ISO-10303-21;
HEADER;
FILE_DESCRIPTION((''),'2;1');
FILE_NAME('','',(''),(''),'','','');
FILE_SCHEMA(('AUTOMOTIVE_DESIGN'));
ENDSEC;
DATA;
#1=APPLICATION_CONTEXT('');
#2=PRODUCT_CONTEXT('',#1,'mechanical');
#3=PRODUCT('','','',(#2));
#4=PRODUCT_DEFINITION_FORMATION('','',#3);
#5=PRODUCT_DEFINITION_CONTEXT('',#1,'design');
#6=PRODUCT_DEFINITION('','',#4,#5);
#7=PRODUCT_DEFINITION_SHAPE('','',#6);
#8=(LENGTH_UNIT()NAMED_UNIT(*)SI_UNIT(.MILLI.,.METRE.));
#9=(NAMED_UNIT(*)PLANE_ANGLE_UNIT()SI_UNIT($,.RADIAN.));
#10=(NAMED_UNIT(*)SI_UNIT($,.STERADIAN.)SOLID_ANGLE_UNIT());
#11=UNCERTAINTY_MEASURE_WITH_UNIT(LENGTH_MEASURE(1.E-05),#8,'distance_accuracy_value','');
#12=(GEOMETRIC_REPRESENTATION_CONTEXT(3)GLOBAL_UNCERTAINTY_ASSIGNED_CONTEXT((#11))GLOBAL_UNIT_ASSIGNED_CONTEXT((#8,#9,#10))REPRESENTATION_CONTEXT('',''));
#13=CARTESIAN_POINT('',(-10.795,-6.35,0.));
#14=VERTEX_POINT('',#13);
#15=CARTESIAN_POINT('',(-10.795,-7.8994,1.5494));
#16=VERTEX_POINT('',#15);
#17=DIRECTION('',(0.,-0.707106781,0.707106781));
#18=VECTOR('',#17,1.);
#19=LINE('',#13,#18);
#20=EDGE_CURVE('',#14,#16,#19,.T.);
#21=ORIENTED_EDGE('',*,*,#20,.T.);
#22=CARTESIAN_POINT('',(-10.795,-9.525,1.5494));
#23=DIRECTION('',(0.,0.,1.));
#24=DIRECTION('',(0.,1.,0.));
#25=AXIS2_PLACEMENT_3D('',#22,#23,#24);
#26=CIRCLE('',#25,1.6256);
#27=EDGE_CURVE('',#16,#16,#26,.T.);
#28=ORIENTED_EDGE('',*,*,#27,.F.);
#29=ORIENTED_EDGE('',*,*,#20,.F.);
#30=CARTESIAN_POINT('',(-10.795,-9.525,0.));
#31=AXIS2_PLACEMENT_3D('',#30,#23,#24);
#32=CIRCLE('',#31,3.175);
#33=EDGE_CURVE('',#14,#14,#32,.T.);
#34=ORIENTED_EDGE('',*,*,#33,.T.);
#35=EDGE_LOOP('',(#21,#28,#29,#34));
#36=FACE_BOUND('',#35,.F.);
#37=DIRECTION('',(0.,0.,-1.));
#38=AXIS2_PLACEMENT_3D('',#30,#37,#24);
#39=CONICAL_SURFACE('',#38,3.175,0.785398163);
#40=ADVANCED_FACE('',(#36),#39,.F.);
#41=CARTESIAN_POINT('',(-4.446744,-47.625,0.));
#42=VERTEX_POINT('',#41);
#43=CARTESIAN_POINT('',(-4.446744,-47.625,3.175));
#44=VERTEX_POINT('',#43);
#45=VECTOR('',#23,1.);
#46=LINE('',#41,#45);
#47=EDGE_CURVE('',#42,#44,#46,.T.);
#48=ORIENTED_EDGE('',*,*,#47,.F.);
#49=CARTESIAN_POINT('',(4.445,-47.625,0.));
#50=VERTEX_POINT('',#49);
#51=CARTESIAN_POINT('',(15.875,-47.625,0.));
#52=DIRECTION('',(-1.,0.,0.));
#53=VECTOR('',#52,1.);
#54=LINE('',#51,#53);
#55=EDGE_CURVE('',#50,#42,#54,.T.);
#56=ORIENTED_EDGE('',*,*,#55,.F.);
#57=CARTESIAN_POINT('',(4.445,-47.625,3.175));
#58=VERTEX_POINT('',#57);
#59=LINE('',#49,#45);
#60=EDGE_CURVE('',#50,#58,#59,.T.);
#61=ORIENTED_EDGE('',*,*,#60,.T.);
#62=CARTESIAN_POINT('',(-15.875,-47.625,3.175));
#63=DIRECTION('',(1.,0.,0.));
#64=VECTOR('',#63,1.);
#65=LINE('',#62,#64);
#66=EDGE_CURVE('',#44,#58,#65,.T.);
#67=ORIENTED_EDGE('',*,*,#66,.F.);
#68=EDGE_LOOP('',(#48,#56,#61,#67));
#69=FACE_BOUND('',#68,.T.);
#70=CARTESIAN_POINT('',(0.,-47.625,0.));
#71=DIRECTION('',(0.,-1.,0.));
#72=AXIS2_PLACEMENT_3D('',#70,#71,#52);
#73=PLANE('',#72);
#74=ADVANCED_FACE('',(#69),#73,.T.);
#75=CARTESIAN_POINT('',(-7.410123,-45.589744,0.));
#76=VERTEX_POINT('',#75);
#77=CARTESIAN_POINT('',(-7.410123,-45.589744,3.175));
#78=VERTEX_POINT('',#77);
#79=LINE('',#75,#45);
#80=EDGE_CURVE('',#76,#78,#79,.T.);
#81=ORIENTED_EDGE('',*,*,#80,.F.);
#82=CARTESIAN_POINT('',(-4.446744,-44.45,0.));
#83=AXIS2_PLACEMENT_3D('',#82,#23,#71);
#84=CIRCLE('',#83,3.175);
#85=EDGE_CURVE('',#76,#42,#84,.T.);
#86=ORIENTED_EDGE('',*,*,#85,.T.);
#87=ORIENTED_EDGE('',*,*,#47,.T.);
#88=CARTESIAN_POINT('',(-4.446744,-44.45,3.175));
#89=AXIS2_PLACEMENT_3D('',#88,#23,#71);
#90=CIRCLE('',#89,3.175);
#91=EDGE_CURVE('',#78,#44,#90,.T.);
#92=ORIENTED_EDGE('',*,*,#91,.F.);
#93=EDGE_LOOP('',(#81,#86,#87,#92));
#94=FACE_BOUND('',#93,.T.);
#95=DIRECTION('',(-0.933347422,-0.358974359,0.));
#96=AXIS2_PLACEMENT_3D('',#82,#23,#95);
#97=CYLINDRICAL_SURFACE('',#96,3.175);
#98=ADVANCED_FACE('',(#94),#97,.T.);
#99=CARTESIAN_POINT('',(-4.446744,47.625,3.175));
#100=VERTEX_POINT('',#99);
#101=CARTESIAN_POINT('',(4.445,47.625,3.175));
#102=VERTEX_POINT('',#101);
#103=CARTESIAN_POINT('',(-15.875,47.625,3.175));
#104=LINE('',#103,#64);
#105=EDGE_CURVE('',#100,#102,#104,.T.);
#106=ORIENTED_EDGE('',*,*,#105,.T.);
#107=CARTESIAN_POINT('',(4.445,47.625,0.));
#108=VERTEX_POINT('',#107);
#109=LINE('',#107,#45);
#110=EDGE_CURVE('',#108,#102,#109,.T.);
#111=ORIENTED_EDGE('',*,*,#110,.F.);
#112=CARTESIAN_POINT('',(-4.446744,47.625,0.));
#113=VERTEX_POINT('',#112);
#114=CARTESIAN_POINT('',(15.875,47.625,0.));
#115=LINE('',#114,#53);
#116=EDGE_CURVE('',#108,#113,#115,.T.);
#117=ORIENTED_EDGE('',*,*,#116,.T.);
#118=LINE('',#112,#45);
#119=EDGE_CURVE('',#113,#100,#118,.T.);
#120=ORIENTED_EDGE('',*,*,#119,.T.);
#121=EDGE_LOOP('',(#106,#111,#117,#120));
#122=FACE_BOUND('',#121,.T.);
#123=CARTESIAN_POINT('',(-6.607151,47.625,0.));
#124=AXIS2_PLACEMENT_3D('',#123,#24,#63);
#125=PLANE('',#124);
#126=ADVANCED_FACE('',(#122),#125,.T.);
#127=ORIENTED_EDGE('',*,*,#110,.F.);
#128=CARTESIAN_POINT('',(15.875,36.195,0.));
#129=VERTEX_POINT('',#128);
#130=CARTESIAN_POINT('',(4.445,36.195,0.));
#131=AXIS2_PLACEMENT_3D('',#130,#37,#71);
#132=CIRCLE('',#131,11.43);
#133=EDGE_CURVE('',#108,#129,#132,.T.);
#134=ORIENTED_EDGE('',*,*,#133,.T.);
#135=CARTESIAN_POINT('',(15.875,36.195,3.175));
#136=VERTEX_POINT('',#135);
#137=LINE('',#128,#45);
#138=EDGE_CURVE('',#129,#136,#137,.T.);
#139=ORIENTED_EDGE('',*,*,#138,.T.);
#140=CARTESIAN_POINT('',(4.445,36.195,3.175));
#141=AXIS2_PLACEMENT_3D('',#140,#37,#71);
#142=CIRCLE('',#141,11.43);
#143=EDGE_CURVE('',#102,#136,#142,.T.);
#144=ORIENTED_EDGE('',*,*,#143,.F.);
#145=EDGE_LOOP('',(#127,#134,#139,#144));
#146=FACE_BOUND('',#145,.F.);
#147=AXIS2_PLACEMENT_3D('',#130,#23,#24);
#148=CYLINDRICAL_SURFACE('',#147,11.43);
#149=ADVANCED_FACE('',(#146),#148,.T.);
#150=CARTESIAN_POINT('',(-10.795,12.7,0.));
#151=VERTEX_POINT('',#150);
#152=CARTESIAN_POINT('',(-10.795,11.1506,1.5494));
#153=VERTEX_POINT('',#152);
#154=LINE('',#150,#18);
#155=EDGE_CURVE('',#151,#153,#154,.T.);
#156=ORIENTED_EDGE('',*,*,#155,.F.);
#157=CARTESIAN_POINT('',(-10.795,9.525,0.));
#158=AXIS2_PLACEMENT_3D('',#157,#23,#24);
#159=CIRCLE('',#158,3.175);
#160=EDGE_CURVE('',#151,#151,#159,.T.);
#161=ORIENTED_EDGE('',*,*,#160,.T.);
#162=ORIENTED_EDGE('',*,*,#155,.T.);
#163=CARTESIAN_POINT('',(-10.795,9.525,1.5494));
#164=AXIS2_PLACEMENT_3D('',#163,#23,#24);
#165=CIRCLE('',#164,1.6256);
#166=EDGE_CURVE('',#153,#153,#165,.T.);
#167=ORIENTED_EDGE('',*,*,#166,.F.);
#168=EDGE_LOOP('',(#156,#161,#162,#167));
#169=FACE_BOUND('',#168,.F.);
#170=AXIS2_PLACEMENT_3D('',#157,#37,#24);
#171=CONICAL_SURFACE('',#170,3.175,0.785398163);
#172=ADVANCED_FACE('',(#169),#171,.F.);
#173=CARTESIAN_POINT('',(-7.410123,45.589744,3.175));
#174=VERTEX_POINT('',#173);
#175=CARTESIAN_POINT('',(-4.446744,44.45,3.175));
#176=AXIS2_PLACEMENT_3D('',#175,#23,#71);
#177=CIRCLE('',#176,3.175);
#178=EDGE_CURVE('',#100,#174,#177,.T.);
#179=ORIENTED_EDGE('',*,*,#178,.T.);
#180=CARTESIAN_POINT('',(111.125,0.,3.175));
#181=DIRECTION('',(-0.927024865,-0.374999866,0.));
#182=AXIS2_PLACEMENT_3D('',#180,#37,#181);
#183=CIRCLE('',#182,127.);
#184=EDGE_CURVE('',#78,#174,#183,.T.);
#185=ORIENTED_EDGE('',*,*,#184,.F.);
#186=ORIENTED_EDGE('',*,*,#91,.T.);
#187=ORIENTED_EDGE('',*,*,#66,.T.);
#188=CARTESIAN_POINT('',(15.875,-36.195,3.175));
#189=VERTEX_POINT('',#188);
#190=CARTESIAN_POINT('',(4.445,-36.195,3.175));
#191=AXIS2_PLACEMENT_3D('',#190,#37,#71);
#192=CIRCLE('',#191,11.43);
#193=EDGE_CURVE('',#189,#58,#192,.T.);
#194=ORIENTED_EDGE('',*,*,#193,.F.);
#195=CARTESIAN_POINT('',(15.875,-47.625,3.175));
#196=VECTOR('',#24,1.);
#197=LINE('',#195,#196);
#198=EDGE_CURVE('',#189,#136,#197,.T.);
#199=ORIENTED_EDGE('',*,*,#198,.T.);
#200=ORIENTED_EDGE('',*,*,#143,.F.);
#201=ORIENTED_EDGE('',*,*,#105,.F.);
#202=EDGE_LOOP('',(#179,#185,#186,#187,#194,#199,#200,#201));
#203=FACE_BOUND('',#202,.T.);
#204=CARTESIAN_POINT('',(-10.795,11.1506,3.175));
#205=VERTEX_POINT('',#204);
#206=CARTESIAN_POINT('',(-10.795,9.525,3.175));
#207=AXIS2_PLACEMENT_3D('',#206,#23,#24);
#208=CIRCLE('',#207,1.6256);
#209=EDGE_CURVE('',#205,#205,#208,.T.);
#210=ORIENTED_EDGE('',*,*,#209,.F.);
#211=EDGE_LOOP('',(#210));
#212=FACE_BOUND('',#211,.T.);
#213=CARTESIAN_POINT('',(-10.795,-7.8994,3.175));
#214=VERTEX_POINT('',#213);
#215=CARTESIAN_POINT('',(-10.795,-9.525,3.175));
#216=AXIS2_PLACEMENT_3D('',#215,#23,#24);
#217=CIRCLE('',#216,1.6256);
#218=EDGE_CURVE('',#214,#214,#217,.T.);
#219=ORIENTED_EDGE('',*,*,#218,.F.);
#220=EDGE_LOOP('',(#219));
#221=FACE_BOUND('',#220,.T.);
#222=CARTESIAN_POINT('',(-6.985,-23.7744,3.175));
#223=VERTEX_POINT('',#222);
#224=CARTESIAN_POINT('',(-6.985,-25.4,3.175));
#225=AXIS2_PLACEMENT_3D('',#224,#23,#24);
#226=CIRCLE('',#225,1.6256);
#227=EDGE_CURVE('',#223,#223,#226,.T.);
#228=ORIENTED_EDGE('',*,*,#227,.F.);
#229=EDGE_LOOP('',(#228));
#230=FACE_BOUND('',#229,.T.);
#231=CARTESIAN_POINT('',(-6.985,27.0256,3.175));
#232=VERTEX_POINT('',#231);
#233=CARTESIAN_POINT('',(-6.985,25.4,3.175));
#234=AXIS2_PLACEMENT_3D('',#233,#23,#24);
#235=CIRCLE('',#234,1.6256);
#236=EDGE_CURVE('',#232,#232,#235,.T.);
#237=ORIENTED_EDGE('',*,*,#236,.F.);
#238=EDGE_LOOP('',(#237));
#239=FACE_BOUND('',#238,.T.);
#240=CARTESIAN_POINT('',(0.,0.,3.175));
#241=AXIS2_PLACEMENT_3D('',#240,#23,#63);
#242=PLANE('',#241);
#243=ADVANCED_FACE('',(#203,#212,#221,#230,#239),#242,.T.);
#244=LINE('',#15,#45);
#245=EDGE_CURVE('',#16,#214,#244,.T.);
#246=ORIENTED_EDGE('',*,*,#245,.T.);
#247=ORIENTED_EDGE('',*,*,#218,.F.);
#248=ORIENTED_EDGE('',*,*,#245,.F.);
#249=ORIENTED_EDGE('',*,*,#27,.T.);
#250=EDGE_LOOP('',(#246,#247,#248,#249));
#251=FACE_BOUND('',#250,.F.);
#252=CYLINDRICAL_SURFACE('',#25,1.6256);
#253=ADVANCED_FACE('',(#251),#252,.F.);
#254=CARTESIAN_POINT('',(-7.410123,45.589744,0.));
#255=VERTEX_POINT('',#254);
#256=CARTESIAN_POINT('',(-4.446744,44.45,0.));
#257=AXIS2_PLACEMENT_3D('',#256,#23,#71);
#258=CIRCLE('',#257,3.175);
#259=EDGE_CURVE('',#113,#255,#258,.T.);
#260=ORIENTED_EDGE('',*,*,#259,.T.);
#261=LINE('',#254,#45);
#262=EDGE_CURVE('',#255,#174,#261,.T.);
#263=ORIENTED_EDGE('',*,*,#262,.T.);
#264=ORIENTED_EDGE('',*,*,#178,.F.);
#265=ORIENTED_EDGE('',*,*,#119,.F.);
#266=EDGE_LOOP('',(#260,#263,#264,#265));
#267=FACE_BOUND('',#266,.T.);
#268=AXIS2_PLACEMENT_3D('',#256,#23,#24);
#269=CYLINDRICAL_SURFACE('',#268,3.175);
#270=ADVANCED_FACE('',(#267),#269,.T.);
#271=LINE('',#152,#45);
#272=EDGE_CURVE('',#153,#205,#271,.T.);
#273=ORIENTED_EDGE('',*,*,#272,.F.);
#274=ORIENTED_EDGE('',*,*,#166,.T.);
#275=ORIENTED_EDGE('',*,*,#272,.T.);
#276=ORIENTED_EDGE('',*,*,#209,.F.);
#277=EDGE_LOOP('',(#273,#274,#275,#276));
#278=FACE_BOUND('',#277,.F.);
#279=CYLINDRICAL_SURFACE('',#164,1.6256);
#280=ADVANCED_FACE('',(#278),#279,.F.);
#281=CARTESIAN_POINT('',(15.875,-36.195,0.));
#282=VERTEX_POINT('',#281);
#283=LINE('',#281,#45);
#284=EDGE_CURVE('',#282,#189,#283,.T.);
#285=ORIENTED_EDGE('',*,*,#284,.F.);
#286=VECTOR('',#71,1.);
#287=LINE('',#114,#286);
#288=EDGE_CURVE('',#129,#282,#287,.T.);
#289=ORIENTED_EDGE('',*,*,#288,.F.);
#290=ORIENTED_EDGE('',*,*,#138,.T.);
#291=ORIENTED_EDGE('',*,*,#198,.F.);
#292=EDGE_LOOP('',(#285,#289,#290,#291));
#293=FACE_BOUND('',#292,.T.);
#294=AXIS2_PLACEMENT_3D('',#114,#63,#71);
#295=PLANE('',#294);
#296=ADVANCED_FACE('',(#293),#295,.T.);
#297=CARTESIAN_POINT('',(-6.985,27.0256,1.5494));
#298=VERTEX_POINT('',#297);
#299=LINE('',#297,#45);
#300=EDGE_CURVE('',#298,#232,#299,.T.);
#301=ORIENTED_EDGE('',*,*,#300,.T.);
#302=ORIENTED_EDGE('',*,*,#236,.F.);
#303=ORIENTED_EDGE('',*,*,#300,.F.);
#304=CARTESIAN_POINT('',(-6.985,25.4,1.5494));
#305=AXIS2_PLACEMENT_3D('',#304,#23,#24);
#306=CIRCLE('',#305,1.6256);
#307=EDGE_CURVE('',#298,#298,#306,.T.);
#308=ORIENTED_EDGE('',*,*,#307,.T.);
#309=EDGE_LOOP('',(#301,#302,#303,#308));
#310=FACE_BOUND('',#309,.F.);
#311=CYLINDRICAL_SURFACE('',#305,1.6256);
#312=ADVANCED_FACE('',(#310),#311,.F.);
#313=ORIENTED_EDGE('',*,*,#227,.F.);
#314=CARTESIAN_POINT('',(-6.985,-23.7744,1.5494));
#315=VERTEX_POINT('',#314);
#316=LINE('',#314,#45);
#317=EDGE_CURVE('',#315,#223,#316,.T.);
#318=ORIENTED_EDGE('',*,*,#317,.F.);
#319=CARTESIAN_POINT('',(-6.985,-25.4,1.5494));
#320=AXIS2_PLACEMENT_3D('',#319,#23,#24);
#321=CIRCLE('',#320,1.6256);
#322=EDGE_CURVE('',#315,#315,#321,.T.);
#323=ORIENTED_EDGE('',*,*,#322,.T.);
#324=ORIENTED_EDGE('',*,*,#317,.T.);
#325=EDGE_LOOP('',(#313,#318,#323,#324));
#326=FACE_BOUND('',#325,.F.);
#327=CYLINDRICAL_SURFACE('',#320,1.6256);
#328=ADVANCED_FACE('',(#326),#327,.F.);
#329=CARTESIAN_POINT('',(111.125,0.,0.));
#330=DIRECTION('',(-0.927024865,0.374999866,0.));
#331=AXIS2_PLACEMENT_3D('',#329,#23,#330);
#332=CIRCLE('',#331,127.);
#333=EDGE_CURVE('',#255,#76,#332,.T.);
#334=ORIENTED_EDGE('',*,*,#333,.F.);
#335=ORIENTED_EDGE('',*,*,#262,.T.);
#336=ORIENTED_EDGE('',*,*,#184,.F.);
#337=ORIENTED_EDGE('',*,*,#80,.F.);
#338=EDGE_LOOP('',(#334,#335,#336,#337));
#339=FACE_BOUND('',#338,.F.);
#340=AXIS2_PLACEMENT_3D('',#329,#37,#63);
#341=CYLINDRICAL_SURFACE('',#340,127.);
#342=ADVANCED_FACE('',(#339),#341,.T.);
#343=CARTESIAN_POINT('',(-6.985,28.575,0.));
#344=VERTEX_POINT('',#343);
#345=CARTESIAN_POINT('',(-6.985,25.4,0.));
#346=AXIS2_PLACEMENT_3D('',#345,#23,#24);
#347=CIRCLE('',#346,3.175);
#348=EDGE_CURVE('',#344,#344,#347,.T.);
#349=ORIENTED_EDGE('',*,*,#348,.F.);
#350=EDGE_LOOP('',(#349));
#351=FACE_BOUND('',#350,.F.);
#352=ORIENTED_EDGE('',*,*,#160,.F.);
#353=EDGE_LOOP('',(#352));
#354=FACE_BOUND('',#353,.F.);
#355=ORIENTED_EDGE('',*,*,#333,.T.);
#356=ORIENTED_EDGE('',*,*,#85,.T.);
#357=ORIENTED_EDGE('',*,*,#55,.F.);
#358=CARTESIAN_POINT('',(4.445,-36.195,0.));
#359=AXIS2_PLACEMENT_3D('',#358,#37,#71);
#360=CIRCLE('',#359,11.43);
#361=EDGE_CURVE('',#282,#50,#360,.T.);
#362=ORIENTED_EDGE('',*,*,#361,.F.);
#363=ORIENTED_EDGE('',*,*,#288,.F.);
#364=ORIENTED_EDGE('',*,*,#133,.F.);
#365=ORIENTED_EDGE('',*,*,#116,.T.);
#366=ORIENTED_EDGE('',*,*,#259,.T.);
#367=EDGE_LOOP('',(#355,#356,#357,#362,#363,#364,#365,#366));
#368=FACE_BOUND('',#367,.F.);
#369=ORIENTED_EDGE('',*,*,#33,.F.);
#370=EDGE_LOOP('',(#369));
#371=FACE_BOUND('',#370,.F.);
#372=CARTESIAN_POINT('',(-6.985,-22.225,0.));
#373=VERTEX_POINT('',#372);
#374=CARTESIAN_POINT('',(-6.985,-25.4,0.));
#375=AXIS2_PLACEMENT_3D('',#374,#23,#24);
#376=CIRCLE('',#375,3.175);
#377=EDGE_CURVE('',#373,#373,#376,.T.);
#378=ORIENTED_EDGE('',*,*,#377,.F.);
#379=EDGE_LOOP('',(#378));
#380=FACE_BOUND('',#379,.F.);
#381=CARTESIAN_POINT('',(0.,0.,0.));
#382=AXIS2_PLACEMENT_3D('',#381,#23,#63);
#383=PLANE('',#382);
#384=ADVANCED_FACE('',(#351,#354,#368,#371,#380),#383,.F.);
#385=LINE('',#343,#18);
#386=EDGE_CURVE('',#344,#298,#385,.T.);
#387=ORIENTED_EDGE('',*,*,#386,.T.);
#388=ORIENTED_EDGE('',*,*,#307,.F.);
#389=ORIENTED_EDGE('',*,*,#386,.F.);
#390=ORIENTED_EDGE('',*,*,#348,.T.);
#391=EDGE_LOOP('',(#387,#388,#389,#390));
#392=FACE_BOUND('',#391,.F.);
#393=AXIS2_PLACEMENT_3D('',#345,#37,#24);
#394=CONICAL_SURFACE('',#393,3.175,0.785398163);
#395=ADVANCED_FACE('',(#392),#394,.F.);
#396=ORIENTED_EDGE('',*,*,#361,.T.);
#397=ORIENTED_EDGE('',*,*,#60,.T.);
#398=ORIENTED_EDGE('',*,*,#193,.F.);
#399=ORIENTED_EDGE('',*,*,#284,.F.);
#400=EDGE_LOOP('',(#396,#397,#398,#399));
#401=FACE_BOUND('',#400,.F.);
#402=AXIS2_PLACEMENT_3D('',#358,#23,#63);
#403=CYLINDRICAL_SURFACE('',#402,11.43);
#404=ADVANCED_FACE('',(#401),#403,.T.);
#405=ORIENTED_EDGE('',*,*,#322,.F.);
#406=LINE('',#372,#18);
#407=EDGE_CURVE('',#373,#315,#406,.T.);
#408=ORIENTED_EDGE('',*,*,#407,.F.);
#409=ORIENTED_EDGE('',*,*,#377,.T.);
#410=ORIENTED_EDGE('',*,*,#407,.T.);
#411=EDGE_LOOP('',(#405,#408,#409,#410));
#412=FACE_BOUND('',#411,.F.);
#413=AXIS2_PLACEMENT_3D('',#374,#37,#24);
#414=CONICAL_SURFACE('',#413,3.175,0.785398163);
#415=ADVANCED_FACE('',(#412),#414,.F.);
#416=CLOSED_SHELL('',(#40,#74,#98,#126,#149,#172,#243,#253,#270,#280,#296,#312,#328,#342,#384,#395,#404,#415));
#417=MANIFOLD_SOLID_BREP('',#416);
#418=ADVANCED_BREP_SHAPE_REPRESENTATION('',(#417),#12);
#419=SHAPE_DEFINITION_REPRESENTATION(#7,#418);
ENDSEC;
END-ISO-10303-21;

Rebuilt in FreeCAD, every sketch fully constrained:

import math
import FreeCAD as App
import Part
import Sketcher
from FreeCAD import Vector
Q = App.Units.Quantity


def edges_at(feature, points):
    """Names of the edges that pass closest to the given points."""
    edges = feature.Shape.Edges
    near = lambda p: min(range(len(edges)), key=lambda i: edges[i].distToShape(Part.Vertex(*p))[0])
    return sorted({f"Edge{near(p) + 1}" for p in points})


def add_polygon(sketch, points):
    """Adds a closed chain of lines whose ends are joined by coincident constraints."""
    first, n = sketch.GeometryCount, len(points)
    for a, b in zip(points, points[1:] + points[:1]):
        sketch.addGeometry(Part.LineSegment(App.Vector(*a, 0), App.Vector(*b, 0)), False)
    for i in range(n):
        sketch.addConstraint(Sketcher.Constraint("Coincident", first + i, 2, first + (i + 1) % n, 1))

doc = App.newDocument("Part")
body = doc.addObject("PartDesign::Body", "Body")

# Sketch on XY plane
sketch1 = doc.addObject("Sketcher::SketchObject", "Sketch")
body.addObject(sketch1)
sketch1.AttachmentSupport = (doc.XY_Plane, [""])
sketch1.MapMode = "FlatFace"
add_polygon(sketch1, [(-16, 48), (-16, -48), (16, -48), (16, 48)])  # lines 0-3
sketch1.addConstraint(Sketcher.Constraint("Vertical", 0))
sketch1.addConstraint(Sketcher.Constraint("Horizontal", 1))
sketch1.addConstraint(Sketcher.Constraint("Vertical", 2))
sketch1.addConstraint(Sketcher.Constraint("Horizontal", 3))
sketch1.addConstraint(Sketcher.Constraint("Symmetric", 0, 2, 2, 2, -1, 1))
sketch1.addConstraint(Sketcher.Constraint("DistanceX", 1, 1, 1, 2, Q("1.25 in")))
sketch1.addConstraint(Sketcher.Constraint("DistanceY", 0, 2, -1, 1, Q("1.875 in")))
pad1 = doc.addObject("PartDesign::Pad", "Pad")
body.addObject(pad1)
pad1.Profile = sketch1
pad1.Length = Q("0.125 in")

# Sketch on XY plane
sketch2 = doc.addObject("Sketcher::SketchObject", "Sketch001")
body.addObject(sketch2)
sketch2.AttachmentSupport = (doc.XY_Plane, [""])
sketch2.MapMode = "FlatFace"
sketch2.addGeometry(Part.Circle(Vector(-10.8, 9.5, 0), Vector(0, 0, 1), 1.6), False)
sketch2.addGeometry(Part.Circle(Vector(-10.8, -9.5, 0), Vector(0, 0, 1), 1.6), False)
sketch2.addGeometry(Part.Circle(Vector(-7, 25.4, 0), Vector(0, 0, 1), 1.6), False)
sketch2.addGeometry(Part.Circle(Vector(-7, -25.4, 0), Vector(0, 0, 1), 1.6), False)
sketch2.addConstraint(Sketcher.Constraint("Equal", 0, 1))
sketch2.addConstraint(Sketcher.Constraint("Equal", 1, 2))
sketch2.addConstraint(Sketcher.Constraint("Equal", 2, 3))
sketch2.addConstraint(Sketcher.Constraint("Symmetric", 0, 3, 1, 3, -1))
sketch2.addConstraint(Sketcher.Constraint("Symmetric", 2, 3, 3, 3, -1))
sketch2.addConstraint(Sketcher.Constraint("Diameter", 0, Q("0.128 in")))
sketch2.addConstraint(Sketcher.Constraint("DistanceY", -1, 1, 2, 3, Q("1 in")))
sketch2.addConstraint(Sketcher.Constraint("DistanceY", 1, 3, 0, 3, Q("0.75 in")))
sketch2.addConstraint(Sketcher.Constraint("DistanceX", 0, 3, 2, 3, Q("0.15 in")))
sketch2.addConstraint(Sketcher.Constraint("DistanceX", 0, 3, -1, 1, Q("0.425 in")))
doc.recompute()
hole = doc.addObject("PartDesign::Hole", "Hole")
body.addObject(hole)
hole.Profile = sketch2
hole.ThreadType = "None"
hole.Diameter = Q("0.128 in")
hole.DepthType = "ThroughAll"
hole.HoleCutType = "Countersink"
hole.HoleCutDiameter = Q("0.25 in")
hole.HoleCutCountersinkAngle = 90
hole.Reversed = True
doc.recompute()

fillet = doc.addObject("PartDesign::Fillet", "Fillet")
body.addObject(fillet)
fillet.Base = (hole, edges_at(hole, [(15.875, 47.625, 1.587), (15.875, -47.625, 1.587)]))
fillet.Radius = Q("0.45 in")

# Sketch on XY plane
sketch3 = doc.addObject("Sketcher::SketchObject", "Sketch002")
body.addObject(sketch3)
sketch3.AttachmentSupport = (doc.XY_Plane, [""])
sketch3.MapMode = "FlatFace"
sketch3.addGeometry(Part.ArcOfCircle(Part.Circle(Vector(111, 0, 0), Vector(0, 0, 1), 127), math.radians(158), math.radians(180)), False)
sketch3.addGeometry(Part.LineSegment(Vector(-7, 48, 0), Vector(-16, 48, 0)), False)
sketch3.addGeometry(Part.LineSegment(Vector(-16, 48, 0), Vector(-16, 0, 0)), False)
sketch3.addGeometry(Part.LineSegment(Vector(-16, -48, 0), Vector(-7, -48, 0)), False)
sketch3.addGeometry(Part.ArcOfCircle(Part.Circle(Vector(111, 0, 0), Vector(0, 0, 1), 127), math.radians(180), math.radians(202)), False)
sketch3.addGeometry(Part.LineSegment(Vector(-16, 0, 0), Vector(-16, -48, 0)), False)
sketch3.addConstraint(Sketcher.Constraint("Coincident", 0, 1, 1, 1))
sketch3.addConstraint(Sketcher.Constraint("Coincident", 1, 2, 2, 1))
sketch3.addConstraint(Sketcher.Constraint("Tangent", 2, 2, 0, 2))
sketch3.addConstraint(Sketcher.Constraint("Coincident", 3, 2, 4, 2))
sketch3.addConstraint(Sketcher.Constraint("Tangent", 4, 1, 5, 1))
sketch3.addConstraint(Sketcher.Constraint("Coincident", 5, 2, 3, 1))
sketch3.addConstraint(Sketcher.Constraint("Horizontal", 1))
sketch3.addConstraint(Sketcher.Constraint("Vertical", 2))
sketch3.addConstraint(Sketcher.Constraint("Horizontal", 3))
sketch3.addConstraint(Sketcher.Constraint("Vertical", 5))
sketch3.addConstraint(Sketcher.Constraint("Coincident", 4, 3, 0, 3))
sketch3.addConstraint(Sketcher.Constraint("Equal", 0, 4))
sketch3.addConstraint(Sketcher.Constraint("Symmetric", 0, 1, 3, 2, -1))
sketch3.addConstraint(Sketcher.Constraint("Radius", 0, Q("5 in")))
sketch3.addConstraint(Sketcher.Constraint("DistanceY", 2, 2, 2, 1, Q("1.875 in")))
sketch3.addConstraint(Sketcher.Constraint("DistanceX", -1, 1, 0, 3, Q("4.375 in")))
pocket1 = doc.addObject("PartDesign::Pocket", "Pocket")
body.addObject(pocket1)
pocket1.Profile = sketch3
pocket1.Length = Q("1 in")
pocket1.Reversed = True
doc.recompute()

fillet2 = doc.addObject("PartDesign::Fillet", "Fillet001")
body.addObject(fillet2)
fillet2.Base = (pocket1, edges_at(pocket1, [(-6.607, 47.625, 1.587), (-6.607, -47.625, 1.587)]))
fillet2.Radius = Q("0.125 in")

doc.recompute()
